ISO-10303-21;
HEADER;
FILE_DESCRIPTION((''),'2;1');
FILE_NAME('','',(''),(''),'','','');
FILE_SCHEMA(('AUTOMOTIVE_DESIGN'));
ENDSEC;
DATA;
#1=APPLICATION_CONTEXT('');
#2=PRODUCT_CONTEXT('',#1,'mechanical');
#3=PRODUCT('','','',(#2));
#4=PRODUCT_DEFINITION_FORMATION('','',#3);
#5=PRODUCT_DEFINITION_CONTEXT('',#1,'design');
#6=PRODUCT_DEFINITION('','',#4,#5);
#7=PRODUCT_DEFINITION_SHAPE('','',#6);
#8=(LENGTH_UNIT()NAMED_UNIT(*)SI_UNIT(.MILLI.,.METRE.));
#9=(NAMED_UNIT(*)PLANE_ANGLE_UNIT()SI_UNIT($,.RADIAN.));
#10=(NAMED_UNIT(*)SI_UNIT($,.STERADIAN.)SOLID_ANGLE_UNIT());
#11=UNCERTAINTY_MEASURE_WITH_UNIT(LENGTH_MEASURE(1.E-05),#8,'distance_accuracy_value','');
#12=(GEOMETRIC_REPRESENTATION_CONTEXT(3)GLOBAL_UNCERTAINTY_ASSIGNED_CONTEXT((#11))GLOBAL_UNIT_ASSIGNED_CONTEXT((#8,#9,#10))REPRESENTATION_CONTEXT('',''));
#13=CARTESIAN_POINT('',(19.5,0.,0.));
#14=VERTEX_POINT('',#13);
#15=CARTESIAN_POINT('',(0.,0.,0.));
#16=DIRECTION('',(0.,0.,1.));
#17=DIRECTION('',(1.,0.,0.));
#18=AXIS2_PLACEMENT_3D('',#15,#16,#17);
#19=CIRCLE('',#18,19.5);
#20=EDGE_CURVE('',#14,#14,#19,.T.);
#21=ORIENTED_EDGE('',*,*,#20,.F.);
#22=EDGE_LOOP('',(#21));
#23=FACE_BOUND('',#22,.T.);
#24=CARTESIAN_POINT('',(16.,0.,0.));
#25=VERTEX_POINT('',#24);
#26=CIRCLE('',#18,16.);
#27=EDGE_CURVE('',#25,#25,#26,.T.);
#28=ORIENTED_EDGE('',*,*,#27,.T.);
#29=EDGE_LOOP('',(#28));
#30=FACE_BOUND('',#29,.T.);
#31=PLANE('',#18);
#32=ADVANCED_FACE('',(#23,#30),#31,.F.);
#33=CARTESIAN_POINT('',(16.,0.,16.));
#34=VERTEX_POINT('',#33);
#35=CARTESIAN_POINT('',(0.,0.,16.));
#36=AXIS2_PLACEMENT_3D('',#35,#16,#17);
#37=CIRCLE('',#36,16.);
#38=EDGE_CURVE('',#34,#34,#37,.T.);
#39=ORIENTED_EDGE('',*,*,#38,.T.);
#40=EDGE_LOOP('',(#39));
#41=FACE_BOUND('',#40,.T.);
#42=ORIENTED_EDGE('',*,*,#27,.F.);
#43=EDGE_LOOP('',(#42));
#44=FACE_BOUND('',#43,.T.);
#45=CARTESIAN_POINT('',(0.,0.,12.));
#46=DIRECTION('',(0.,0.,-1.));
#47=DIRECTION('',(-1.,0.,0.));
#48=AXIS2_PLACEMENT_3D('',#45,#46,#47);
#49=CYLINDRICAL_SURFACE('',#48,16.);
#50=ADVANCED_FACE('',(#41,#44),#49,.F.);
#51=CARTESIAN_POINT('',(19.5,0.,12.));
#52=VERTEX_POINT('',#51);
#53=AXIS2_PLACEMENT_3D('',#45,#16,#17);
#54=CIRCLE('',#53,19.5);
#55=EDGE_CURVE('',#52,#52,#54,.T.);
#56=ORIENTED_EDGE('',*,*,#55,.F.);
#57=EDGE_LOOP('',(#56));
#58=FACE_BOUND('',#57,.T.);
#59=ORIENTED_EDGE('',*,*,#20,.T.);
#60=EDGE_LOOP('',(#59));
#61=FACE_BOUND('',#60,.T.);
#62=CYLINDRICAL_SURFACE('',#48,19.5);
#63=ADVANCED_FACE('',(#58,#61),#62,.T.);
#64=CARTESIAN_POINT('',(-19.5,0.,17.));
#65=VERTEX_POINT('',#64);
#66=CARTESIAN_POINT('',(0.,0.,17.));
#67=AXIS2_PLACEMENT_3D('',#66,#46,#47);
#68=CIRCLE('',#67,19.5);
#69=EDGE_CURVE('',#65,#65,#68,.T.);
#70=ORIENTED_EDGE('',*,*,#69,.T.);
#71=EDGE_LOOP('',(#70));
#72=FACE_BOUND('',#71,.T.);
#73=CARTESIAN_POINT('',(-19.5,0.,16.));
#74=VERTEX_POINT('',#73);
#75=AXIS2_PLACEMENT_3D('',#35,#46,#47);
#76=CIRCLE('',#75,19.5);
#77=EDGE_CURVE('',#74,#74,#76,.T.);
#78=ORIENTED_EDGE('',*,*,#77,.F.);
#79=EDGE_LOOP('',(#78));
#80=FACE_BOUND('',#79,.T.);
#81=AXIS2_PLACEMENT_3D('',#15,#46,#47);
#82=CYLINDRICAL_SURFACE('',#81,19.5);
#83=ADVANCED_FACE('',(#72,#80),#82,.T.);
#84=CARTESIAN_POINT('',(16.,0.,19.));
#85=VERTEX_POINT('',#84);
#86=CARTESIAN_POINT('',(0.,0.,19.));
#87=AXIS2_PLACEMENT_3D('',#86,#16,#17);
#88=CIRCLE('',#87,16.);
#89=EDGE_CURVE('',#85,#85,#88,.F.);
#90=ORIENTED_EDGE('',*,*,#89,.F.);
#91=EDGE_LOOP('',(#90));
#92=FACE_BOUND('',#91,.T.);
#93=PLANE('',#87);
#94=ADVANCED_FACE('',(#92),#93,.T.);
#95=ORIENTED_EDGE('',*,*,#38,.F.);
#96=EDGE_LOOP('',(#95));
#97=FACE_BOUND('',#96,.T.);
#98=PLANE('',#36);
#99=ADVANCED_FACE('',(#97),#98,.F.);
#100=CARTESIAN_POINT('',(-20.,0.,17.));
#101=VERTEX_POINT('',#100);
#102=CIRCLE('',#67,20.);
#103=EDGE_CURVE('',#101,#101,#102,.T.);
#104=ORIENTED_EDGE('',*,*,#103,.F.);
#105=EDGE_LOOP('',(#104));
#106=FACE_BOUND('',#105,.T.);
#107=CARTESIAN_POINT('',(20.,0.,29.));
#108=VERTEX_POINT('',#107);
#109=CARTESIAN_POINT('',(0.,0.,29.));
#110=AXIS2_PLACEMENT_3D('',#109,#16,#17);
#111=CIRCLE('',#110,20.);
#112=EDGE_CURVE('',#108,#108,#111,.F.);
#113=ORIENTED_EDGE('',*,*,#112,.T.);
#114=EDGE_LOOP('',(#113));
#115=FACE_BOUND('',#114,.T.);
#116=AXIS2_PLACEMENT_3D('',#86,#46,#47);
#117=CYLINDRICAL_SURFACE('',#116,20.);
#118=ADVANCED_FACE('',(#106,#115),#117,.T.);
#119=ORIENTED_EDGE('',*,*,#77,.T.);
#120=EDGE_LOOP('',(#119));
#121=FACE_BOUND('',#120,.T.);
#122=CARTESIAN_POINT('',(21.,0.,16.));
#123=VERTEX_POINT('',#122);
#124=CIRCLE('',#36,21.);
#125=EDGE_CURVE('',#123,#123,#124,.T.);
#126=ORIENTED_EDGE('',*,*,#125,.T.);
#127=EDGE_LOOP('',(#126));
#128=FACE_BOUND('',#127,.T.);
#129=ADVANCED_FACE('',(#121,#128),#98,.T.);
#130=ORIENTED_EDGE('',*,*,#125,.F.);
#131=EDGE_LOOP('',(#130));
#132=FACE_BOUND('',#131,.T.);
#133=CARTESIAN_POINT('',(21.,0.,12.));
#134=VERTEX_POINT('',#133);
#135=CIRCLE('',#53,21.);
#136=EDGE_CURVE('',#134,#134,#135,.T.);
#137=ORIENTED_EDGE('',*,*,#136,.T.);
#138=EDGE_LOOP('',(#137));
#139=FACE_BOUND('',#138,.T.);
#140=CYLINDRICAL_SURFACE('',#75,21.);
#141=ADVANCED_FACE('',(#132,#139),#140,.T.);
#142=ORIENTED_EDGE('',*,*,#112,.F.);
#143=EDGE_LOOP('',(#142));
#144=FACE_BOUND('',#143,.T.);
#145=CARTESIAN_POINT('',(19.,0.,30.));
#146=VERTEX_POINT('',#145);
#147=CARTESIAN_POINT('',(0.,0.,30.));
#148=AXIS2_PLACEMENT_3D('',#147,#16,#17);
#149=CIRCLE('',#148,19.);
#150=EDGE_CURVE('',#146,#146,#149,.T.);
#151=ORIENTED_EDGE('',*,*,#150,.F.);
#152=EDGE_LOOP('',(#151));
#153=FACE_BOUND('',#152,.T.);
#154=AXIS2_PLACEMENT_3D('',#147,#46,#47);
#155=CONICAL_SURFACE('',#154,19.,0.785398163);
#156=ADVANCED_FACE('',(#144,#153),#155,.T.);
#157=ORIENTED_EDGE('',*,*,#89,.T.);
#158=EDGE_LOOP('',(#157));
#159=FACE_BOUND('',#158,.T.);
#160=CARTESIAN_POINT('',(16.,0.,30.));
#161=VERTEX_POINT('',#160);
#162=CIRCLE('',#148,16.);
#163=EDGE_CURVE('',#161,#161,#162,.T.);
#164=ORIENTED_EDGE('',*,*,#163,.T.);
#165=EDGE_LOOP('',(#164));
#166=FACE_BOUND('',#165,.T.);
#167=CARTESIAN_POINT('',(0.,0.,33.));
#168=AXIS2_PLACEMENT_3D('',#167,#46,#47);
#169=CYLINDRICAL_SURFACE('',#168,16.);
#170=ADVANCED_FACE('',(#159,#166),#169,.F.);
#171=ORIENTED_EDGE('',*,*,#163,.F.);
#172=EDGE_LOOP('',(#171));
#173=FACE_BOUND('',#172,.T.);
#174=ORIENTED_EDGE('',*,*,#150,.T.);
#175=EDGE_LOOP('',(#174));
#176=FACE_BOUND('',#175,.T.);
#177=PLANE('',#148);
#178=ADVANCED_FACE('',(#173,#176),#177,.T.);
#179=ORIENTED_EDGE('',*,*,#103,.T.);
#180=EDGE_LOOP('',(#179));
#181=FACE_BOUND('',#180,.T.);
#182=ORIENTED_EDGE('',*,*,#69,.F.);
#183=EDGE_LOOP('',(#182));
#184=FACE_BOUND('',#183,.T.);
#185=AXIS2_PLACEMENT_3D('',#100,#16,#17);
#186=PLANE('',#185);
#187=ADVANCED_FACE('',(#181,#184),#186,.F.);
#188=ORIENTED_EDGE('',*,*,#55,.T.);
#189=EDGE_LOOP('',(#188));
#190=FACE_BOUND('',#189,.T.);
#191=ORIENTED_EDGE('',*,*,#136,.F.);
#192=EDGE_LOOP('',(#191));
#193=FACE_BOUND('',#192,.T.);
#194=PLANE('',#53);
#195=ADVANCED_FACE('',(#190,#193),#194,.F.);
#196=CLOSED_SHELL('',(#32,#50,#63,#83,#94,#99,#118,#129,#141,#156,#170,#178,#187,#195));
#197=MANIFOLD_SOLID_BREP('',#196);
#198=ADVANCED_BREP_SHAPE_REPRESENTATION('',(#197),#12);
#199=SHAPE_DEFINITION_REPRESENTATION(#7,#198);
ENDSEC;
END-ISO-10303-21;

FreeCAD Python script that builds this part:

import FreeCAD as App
import Part
import Sketcher


def edges_at(feature, points):
    """Names of the edges that pass closest to the given points."""
    edges = feature.Shape.Edges
    near = lambda p: min(range(len(edges)), key=lambda i: edges[i].distToShape(Part.Vertex(*p))[0])
    return sorted({f"Edge{near(p) + 1}" for p in points})


def add_polygon(sketch, points):
    """Adds a closed chain of lines whose ends are joined by coincident constraints."""
    first, n = sketch.GeometryCount, len(points)
    for a, b in zip(points, points[1:] + points[:1]):
        sketch.addGeometry(Part.LineSegment(App.Vector(*a, 0), App.Vector(*b, 0)), False)
    for i in range(n):
        sketch.addConstraint(Sketcher.Constraint("Coincident", first + i, 2, first + (i + 1) % n, 1))

doc = App.newDocument("Part")
params = doc.addObject("Spreadsheet::Sheet", "Params")
for row, (alias, value) in enumerate([
    ("sketch1_diameter", "39 mm"),
    ("sketch1_diameter2", "32 mm"),
    ("pad1_length", "12 mm"),
    ("sketch2_diameter", "42 mm"),
    ("sketch2_diameter2", "32 mm"),
    ("pad2_length", "4 mm"),
    ("sketch3_diameter", "40 mm"),
    ("pad3_length", "3 mm"),
    ("sketch4_diameter", "40 mm"),
    ("sketch4_diameter2", "32 mm"),
    ("pad4_length", "14 mm"),
    ("sketch5_diameter", "40 mm"),
    ("sketch5_diameter2", "38 mm"),
    ("pocket1_length", "1.5 mm"),
    ("sketch6_diameter", "40 mm"),
    ("pocket2_length", "3 mm"),
    ("chamfer_size", "1 mm"),
    ("sketch7_height", "1 mm"),
    ("sketch7_width", "0.5 mm"),
    ("groove_angle", "360 deg"),
], start=1):
    params.set(f"A{row}", alias)
    params.set(f"B{row}", "=" + value)
    params.setAlias(f"B{row}", alias)

body = doc.addObject("PartDesign::Body", "Body")

# Sketch on XY plane
sketch1 = body.newObject("Sketcher::SketchObject", "Sketch")
sketch1.AttachmentSupport = (doc.getObject("XY_Plane"), [""])
sketch1.MapMode = "FlatFace"
sketch1.addGeometry([
    Part.Circle(App.Vector(0, 0, 0), App.Vector(0, 0, 1), 20),
    Part.Circle(App.Vector(0, 0, 0), App.Vector(0, 0, 1), 16),
], False)
sketch1.addConstraint([
    Sketcher.Constraint("Coincident", 0, 3, -1, 1),
    Sketcher.Constraint("Coincident", 1, 3, -1, 1),
    Sketcher.Constraint("Diameter", 0, 39.0),
    Sketcher.Constraint("Diameter", 1, 32.0),
])
sketch1.setExpression("Constraints[2]", "Params.sketch1_diameter")
sketch1.setExpression("Constraints[3]", "Params.sketch1_diameter2")
pad1 = body.newObject("PartDesign::Pad", "Pad")
pad1.Profile = sketch1
pad1.setExpression("Length", "Params.pad1_length")

# Sketch on XY plane
sketch2 = body.newObject("Sketcher::SketchObject", "Sketch001")
sketch2.AttachmentSupport = (doc.getObject("XY_Plane"), [""])
sketch2.MapMode = "FlatFace"
sketch2.AttachmentOffset = App.Placement(App.Vector(0, 0, 12), App.Rotation())
sketch2.addGeometry([
    Part.Circle(App.Vector(0, 0, 0), App.Vector(0, 0, 1), 21),
    Part.Circle(App.Vector(0, 0, 0), App.Vector(0, 0, 1), 16),
], False)
sketch2.addConstraint([
    Sketcher.Constraint("Coincident", 0, 3, -1, 1),
    Sketcher.Constraint("Coincident", 1, 3, -1, 1),
    Sketcher.Constraint("Diameter", 0, 42.0),
    Sketcher.Constraint("Diameter", 1, 32.0),
])
sketch2.setExpression("Constraints[2]", "Params.sketch2_diameter")
sketch2.setExpression("Constraints[3]", "Params.sketch2_diameter2")
pad2 = body.newObject("PartDesign::Pad", "Pad001")
pad2.Profile = sketch2
pad2.setExpression("Length", "Params.pad2_length")

# Sketch on XY plane
sketch3 = body.newObject("Sketcher::SketchObject", "Sketch002")
sketch3.AttachmentSupport = (doc.getObject("XY_Plane"), [""])
sketch3.MapMode = "FlatFace"
sketch3.AttachmentOffset = App.Placement(App.Vector(0, 0, 16), App.Rotation())
sketch3.addGeometry(Part.Circle(App.Vector(0, 0, 0), App.Vector(0, 0, 1), 20), False)
sketch3.addConstraint([
    Sketcher.Constraint("Coincident", 0, 3, -1, 1),
    Sketcher.Constraint("Diameter", 0, 40.0),
])
sketch3.setExpression("Constraints[1]", "Params.sketch3_diameter")
pad3 = body.newObject("PartDesign::Pad", "Pad002")
pad3.Profile = sketch3
pad3.setExpression("Length", "Params.pad3_length")

# Sketch on XY plane
sketch4 = body.newObject("Sketcher::SketchObject", "Sketch003")
sketch4.AttachmentSupport = (doc.getObject("XY_Plane"), [""])
sketch4.MapMode = "FlatFace"
sketch4.AttachmentOffset = App.Placement(App.Vector(0, 0, 19), App.Rotation())
sketch4.addGeometry([
    Part.Circle(App.Vector(0, 0, 0), App.Vector(0, 0, 1), 20),
    Part.Circle(App.Vector(0, 0, 0), App.Vector(0, 0, 1), 16),
], False)
sketch4.addConstraint([
    Sketcher.Constraint("Coincident", 0, 3, -1, 1),
    Sketcher.Constraint("Coincident", 1, 3, -1, 1),
    Sketcher.Constraint("Diameter", 0, 40.0),
    Sketcher.Constraint("Diameter", 1, 32.0),
])
sketch4.setExpression("Constraints[2]", "Params.sketch4_diameter")
sketch4.setExpression("Constraints[3]", "Params.sketch4_diameter2")
pad4 = body.newObject("PartDesign::Pad", "Pad003")
pad4.Profile = sketch4
pad4.setExpression("Length", "Params.pad4_length")

# Sketch on XY plane
sketch5 = body.newObject("Sketcher::SketchObject", "Sketch004")
sketch5.AttachmentSupport = (doc.getObject("XY_Plane"), [""])
sketch5.MapMode = "FlatFace"
sketch5.AttachmentOffset = App.Placement(App.Vector(0, 0, 30), App.Rotation())
sketch5.addGeometry([
    Part.Circle(App.Vector(0, 0, 0), App.Vector(0, 0, 1), 20),
    Part.Circle(App.Vector(0, 0, 0), App.Vector(0, 0, 1), 19),
], False)
sketch5.addConstraint([
    Sketcher.Constraint("Coincident", 0, 3, -1, 1),
    Sketcher.Constraint("Coincident", 1, 3, -1, 1),
    Sketcher.Constraint("Diameter", 0, 40.0),
    Sketcher.Constraint("Diameter", 1, 38.0),
])
sketch5.setExpression("Constraints[2]", "Params.sketch5_diameter")
sketch5.setExpression("Constraints[3]", "Params.sketch5_diameter2")
pocket1 = body.newObject("PartDesign::Pocket", "Pocket")
pocket1.Profile = sketch5
pocket1.setExpression("Length", "Params.pocket1_length")
pocket1.Reversed = True

# Sketch on XY plane
sketch6 = body.newObject("Sketcher::SketchObject", "Sketch005")
sketch6.AttachmentSupport = (doc.getObject("XY_Plane"), [""])
sketch6.MapMode = "FlatFace"
sketch6.AttachmentOffset = App.Placement(App.Vector(0, 0, 30), App.Rotation())
sketch6.addGeometry(Part.Circle(App.Vector(0, 0, 0), App.Vector(0, 0, 1), 20), False)
sketch6.addConstraint([
    Sketcher.Constraint("Coincident", 0, 3, -1, 1),
    Sketcher.Constraint("Diameter", 0, 40.0),
])
sketch6.setExpression("Constraints[1]", "Params.sketch6_diameter")
pocket2 = body.newObject("PartDesign::Pocket", "Pocket001")
pocket2.Profile = sketch6
pocket2.setExpression("Length", "Params.pocket2_length")
pocket2.Reversed = True
doc.recompute()

chamfer = body.newObject("PartDesign::Chamfer", "Chamfer")
chamfer.Base = (pocket2, edges_at(pocket2, [(-20, 0, 30)]))
chamfer.setExpression("Size", "Params.chamfer_size")

# Sketch on XZ plane
sketch7 = body.newObject("Sketcher::SketchObject", "Sketch006")
sketch7.AttachmentSupport = (doc.getObject("XZ_Plane"), [""])
sketch7.MapMode = "FlatFace"
add_polygon(sketch7, [(-20, 16), (-20, 17), (-19.5, 17), (-19.5, 16)])  # lines 0-3
sketch7.addConstraint([
    Sketcher.Constraint("Vertical", 0),
    Sketcher.Constraint("Horizontal", 1),
    Sketcher.Constraint("Vertical", 2),
    Sketcher.Constraint("Horizontal", 3),
    Sketcher.Constraint("DistanceY", 0, 1, 0, 2, 1.0),
    Sketcher.Constraint("DistanceX", 1, 1, 1, 2, 0.5),
    Sketcher.Constraint("DistanceX", 0, 2, -1, 1, 20.0),
    Sketcher.Constraint("DistanceY", -1, 1, 0, 2, 17.0),
])
sketch7.setExpression("Constraints[8]", "Params.sketch7_height")
sketch7.setExpression("Constraints[9]", "Params.sketch7_width")
groove = body.newObject("PartDesign::Groove", "Groove")
groove.Profile = sketch7
groove.ReferenceAxis = (sketch7, ["V_Axis"])
groove.setExpression("Angle", "Params.groove_angle")

doc.recompute()
